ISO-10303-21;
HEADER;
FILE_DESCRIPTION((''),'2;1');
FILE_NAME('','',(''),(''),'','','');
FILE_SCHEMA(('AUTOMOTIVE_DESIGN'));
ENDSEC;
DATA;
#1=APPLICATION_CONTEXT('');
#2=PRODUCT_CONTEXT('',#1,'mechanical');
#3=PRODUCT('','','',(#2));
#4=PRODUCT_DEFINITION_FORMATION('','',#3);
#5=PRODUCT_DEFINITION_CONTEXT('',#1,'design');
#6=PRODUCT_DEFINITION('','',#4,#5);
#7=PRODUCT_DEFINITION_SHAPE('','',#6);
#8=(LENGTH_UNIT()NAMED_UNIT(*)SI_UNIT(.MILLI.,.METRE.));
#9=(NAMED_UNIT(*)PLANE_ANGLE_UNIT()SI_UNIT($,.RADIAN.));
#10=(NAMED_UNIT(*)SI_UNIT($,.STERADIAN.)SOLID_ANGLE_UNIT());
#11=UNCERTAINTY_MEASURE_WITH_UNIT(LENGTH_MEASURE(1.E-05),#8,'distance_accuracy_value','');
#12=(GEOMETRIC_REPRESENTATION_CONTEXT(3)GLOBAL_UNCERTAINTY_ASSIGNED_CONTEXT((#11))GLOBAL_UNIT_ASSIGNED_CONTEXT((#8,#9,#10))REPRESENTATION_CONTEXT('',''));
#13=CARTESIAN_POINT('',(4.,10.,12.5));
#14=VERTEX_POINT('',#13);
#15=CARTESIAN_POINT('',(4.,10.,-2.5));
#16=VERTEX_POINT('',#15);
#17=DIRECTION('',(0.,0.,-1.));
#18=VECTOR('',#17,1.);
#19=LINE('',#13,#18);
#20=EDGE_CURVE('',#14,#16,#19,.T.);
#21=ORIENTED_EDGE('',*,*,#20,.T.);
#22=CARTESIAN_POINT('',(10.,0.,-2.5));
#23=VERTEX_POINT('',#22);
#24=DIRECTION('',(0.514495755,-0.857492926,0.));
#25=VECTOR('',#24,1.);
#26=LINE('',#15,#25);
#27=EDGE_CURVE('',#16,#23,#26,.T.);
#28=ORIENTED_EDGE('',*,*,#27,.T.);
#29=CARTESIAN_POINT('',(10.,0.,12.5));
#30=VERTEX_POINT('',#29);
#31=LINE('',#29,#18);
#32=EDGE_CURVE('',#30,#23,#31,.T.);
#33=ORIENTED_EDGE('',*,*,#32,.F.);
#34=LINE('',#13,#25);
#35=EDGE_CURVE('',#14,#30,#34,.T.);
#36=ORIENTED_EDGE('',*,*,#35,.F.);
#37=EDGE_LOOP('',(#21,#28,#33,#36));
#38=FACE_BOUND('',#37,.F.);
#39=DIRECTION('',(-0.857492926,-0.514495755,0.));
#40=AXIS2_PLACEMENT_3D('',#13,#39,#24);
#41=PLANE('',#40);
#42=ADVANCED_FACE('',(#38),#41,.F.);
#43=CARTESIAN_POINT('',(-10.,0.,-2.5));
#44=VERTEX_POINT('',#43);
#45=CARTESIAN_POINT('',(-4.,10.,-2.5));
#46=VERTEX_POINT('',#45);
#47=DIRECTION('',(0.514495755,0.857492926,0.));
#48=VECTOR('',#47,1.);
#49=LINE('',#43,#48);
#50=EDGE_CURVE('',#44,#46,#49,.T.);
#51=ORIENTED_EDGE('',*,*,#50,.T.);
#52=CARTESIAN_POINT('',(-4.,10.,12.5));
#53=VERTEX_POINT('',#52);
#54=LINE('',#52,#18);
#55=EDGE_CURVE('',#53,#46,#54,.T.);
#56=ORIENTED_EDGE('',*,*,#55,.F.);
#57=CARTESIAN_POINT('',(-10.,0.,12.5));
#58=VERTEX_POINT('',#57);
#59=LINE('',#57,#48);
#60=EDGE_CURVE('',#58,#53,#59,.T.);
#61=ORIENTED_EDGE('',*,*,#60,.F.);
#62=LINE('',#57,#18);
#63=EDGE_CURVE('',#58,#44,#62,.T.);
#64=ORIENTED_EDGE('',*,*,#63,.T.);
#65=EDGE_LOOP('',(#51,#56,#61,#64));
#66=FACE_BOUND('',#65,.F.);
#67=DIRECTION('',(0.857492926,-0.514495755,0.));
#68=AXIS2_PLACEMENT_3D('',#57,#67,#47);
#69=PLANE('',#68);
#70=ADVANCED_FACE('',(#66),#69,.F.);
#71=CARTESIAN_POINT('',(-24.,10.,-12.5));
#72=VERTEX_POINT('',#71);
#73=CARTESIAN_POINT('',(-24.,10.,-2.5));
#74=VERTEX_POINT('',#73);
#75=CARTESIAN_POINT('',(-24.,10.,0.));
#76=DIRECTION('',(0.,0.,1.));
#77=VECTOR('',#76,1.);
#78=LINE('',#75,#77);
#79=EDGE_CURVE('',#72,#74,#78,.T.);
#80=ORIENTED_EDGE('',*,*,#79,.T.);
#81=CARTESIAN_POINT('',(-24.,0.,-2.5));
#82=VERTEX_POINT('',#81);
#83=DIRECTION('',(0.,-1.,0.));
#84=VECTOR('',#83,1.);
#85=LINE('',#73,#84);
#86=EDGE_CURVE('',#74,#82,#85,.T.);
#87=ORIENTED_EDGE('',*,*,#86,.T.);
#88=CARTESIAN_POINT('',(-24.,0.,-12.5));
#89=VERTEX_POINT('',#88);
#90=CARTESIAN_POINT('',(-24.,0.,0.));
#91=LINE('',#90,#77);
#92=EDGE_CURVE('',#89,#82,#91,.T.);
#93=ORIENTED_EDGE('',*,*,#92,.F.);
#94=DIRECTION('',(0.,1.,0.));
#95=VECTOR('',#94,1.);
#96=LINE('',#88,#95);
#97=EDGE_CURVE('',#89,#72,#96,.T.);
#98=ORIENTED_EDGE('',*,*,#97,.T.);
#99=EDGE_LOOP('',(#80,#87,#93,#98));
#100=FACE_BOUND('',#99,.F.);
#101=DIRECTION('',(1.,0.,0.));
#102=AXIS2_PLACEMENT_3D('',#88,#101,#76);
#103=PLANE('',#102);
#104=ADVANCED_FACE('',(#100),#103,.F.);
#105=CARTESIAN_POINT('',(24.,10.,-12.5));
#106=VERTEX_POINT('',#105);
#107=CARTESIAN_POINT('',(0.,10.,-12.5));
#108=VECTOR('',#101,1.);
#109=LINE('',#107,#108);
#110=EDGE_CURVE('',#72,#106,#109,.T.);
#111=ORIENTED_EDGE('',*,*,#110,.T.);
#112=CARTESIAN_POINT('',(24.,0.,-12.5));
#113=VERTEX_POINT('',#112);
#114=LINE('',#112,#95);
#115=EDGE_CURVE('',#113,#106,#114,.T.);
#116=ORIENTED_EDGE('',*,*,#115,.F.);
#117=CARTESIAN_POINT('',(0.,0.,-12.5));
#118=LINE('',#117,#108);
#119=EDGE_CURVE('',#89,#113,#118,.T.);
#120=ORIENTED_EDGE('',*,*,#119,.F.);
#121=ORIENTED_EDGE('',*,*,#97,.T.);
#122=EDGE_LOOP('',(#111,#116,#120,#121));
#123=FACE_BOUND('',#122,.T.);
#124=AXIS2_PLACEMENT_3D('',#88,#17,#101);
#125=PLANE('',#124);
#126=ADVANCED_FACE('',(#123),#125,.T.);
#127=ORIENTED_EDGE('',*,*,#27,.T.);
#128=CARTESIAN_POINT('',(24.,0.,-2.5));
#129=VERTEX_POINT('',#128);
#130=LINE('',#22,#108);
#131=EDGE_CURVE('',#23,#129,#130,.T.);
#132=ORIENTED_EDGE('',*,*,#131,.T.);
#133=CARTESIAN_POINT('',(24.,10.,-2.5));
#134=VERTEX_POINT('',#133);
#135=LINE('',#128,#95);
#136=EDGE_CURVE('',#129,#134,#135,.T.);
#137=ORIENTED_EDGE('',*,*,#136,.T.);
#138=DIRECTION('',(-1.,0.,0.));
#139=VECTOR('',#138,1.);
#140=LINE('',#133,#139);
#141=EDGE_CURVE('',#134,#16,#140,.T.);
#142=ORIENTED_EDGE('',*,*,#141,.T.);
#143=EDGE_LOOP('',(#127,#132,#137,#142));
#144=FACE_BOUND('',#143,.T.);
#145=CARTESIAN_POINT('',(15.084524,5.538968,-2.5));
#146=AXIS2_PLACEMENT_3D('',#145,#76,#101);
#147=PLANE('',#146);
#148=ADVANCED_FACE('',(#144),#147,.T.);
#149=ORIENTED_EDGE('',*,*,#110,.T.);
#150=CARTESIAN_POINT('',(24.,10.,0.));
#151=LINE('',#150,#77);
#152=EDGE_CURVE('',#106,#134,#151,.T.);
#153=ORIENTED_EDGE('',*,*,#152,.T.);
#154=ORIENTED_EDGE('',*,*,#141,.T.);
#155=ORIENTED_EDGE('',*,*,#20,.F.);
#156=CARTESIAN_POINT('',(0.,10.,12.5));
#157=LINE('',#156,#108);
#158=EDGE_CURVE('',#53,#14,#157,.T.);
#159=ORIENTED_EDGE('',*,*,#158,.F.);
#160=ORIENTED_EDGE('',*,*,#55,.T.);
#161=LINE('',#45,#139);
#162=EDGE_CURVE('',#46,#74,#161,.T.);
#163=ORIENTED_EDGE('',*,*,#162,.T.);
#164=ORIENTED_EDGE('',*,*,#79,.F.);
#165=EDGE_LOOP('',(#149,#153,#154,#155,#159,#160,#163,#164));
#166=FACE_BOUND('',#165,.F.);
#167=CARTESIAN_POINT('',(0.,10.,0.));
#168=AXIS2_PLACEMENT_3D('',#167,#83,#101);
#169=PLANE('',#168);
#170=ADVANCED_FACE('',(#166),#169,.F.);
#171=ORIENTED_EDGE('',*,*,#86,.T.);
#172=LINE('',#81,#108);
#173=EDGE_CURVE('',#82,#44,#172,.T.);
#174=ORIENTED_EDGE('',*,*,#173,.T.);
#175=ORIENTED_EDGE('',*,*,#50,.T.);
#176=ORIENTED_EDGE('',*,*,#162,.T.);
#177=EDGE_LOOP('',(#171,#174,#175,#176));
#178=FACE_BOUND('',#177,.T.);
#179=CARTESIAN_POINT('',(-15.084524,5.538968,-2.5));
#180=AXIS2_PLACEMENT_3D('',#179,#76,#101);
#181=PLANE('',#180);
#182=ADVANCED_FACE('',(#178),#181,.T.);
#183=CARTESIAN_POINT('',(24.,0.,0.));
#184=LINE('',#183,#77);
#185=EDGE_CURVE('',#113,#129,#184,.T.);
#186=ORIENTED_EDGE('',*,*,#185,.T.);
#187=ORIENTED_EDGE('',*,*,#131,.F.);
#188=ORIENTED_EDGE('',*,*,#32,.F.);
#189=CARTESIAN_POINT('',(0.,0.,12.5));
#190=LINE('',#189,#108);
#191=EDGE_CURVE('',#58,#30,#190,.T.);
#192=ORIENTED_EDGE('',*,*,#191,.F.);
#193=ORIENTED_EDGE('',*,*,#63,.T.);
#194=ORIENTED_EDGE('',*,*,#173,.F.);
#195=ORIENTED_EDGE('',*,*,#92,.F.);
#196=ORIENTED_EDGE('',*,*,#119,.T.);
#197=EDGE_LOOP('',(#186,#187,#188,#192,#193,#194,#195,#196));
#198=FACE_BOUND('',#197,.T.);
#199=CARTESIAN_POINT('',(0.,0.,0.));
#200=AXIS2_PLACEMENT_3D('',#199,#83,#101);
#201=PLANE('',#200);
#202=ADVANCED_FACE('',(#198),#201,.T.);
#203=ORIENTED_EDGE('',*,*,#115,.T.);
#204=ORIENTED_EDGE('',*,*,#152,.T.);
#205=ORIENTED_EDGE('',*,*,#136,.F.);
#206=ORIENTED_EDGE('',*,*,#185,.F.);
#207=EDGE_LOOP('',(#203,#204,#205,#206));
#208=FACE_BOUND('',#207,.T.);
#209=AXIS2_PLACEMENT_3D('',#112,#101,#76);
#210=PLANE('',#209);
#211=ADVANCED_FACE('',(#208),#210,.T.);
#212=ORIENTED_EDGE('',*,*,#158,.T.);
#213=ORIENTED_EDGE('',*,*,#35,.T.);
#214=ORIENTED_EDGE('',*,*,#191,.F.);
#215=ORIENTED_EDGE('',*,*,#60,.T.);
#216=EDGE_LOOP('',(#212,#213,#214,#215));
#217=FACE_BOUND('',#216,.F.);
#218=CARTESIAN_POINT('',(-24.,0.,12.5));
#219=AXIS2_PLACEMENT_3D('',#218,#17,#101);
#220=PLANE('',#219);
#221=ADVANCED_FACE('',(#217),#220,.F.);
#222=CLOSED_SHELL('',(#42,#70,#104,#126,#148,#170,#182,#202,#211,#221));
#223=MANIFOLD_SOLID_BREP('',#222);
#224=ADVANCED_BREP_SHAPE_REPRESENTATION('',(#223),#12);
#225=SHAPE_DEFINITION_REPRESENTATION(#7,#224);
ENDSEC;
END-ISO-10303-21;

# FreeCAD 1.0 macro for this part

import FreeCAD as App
import Part
import Sketcher
from FreeCAD import Vector


def add_polygon(sketch, points):
    """Adds a closed chain of lines whose ends are joined by coincident constraints."""
    first, n = sketch.GeometryCount, len(points)
    for a, b in zip(points, points[1:] + points[:1]):
        sketch.addGeometry(Part.LineSegment(App.Vector(*a, 0), App.Vector(*b, 0)), False)
    for i in range(n):
        sketch.addConstraint(Sketcher.Constraint("Coincident", first + i, 2, first + (i + 1) % n, 1))

doc = App.newDocument("Part")
body = doc.addObject("PartDesign::Body", "Body")

# Sketch on XZ plane
sketch1 = doc.addObject("Sketcher::SketchObject", "Sketch")
body.addObject(sketch1)
sketch1.AttachmentSupport = (doc.XZ_Plane, [""])
sketch1.MapMode = "FlatFace"
add_polygon(sketch1, [(-24, 12.5), (-24, -12.5), (24, -12.5), (24, 12.5)])  # lines 0-3
sketch1.addConstraint([
    Sketcher.Constraint("Vertical", 0),
    Sketcher.Constraint("Horizontal", 1),
    Sketcher.Constraint("Vertical", 2),
    Sketcher.Constraint("Horizontal", 3),
    Sketcher.Constraint("Symmetric", 0, 2, 2, 2, -1, 1),
    Sketcher.Constraint("DistanceX", 1, 1, 1, 2, 48.0),
    Sketcher.Constraint("DistanceY", 0, 2, 0, 1, 25.0),
])
pad1 = doc.addObject("PartDesign::Pad", "Pad")
body.addObject(pad1)
pad1.Profile = sketch1
pad1.Length = 10
pad1.Reversed = True

# Sketch on XY plane
sketch2 = doc.addObject("Sketcher::SketchObject", "Sketch001")
body.addObject(sketch2)
sketch2.AttachmentSupport = (doc.XY_Plane, [""])
sketch2.MapMode = "FlatFace"
sketch2.AttachmentOffset = App.Placement(Vector(0, 0, 12.5), App.Rotation())
add_polygon(sketch2, [(-24, 0), (-10, 0), (-4, 10), (-24, 10)])  # lines 0-3
add_polygon(sketch2, [(4, 10), (10, 0), (24, 0), (24, 10)])  # lines 4-7
sketch2.addConstraint([
    Sketcher.Constraint("Horizontal", 0),
    Sketcher.Constraint("Horizontal", 2),
    Sketcher.Constraint("Vertical", 3),
    Sketcher.Constraint("Horizontal", 5),
    Sketcher.Constraint("Vertical", 6),
    Sketcher.Constraint("Horizontal", 7),
    Sketcher.Constraint("Symmetric", 0, 2, 4, 2, -1, 1),
    Sketcher.Constraint("Symmetric", 3, 2, 5, 2, -2),
    Sketcher.Constraint("Symmetric", 1, 2, 7, 2, -2),
    Sketcher.Constraint("DistanceX", 0, 1, 0, 2, 14.0),
    Sketcher.Constraint("DistanceX", 2, 2, 2, 1, 20.0),
    Sketcher.Constraint("DistanceY", 3, 2, 3, 1, 10.0),
    Sketcher.Constraint("DistanceX", 0, 2, -1, 1, 10.0),
])
pocket1 = doc.addObject("PartDesign::Pocket", "Pocket")
body.addObject(pocket1)
pocket1.Profile = sketch2
pocket1.Length = 15

doc.recompute()
